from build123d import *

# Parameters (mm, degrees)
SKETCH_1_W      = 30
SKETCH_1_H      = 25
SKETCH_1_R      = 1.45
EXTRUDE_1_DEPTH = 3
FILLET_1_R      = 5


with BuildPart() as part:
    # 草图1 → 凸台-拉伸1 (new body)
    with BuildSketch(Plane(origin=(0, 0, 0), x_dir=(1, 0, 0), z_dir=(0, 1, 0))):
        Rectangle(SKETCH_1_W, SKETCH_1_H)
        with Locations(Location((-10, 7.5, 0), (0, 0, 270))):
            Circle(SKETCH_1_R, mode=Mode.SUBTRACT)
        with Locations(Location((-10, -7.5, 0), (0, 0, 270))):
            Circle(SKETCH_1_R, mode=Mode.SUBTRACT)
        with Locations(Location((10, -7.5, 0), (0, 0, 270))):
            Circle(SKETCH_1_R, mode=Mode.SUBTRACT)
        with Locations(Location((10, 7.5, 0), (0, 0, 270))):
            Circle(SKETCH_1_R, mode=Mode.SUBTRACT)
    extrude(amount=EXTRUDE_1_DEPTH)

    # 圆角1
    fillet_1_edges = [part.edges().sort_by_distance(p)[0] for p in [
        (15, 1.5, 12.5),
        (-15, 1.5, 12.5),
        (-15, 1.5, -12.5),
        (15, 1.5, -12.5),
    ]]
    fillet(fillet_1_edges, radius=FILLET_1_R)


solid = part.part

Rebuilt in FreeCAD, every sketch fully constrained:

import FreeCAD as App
import Part
import Sketcher


def edges_at(feature, points):
    """Names of the edges that pass closest to the given points."""
    edges = feature.Shape.Edges
    near = lambda p: min(range(len(edges)), key=lambda i: edges[i].distToShape(Part.Vertex(*p))[0])
    return sorted({f"Edge{near(p) + 1}" for p in points})

doc = App.newDocument("Part")
body = doc.addObject("PartDesign::Body", "Body")

sketch1 = body.newObject("Sketcher::SketchObject", "Sketch")
sketch1.AttachmentSupport = (doc.getObject("XZ_Plane"), [""])
sketch1.MapMode = "FlatFace"
sketch1.addGeometry([
    Part.LineSegment(App.Vector(-15, -12.5, 0), App.Vector(-15, 12.5, 0)),
    Part.LineSegment(App.Vector(-15, 12.5, 0), App.Vector(15, 12.5, 0)),
    Part.LineSegment(App.Vector(15, 12.5, 0), App.Vector(15, -12.5, 0)),
    Part.LineSegment(App.Vector(15, -12.5, 0), App.Vector(-15, -12.5, 0)),
    Part.Circle(App.Vector(-10, 7.5, 0), App.Vector(0, 0, 1), 1.45),
    Part.Circle(App.Vector(10, 7.5, 0), App.Vector(0, 0, 1), 1.45),
    Part.Circle(App.Vector(-10, -7.5, 0), App.Vector(0, 0, 1), 1.45),
    Part.Circle(App.Vector(10, -7.5, 0), App.Vector(0, 0, 1), 1.45),
], False)
sketch1.addConstraint([
    Sketcher.Constraint("Coincident", 0, 2, 1, 1),
    Sketcher.Constraint("Coincident", 1, 2, 2, 1),
    Sketcher.Constraint("Coincident", 2, 2, 3, 1),
    Sketcher.Constraint("Coincident", 3, 2, 0, 1),
    Sketcher.Constraint("Vertical", 0),
    Sketcher.Constraint("Horizontal", 1),
    Sketcher.Constraint("Vertical", 2),
    Sketcher.Constraint("Horizontal", 3),
    Sketcher.Constraint("Equal", 4, 5),
    Sketcher.Constraint("Equal", 5, 6),
    Sketcher.Constraint("Equal", 6, 7),
    Sketcher.Constraint("Symmetric", 5, 3, 6, 3, -1, 1),
    Sketcher.Constraint("Symmetric", 4, 3, 7, 3, -1, 1),
    Sketcher.Constraint("Symmetric", 0, 2, 2, 2, -1, 1),
    Sketcher.Constraint("Symmetric", 4, 3, 5, 3, -2),
    Sketcher.Constraint("Diameter", 4, 2.9),
    Sketcher.Constraint("DistanceX", 1, 1, 1, 2, 30.0),
    Sketcher.Constraint("DistanceY", 0, 1, 0, 2, 25.0),
    Sketcher.Constraint("DistanceX", 4, 3, -1, 1, 10.0),
    Sketcher.Constraint("DistanceY", 6, 3, 4, 3, 15.0),
])
pad1 = body.newObject("PartDesign::Pad", "Pad")
pad1.Profile = sketch1
pad1.Length = 3
pad1.Reversed = True
doc.recompute()

fillet = body.newObject("PartDesign::Fillet", "Fillet")
fillet.Base = (pad1, edges_at(pad1, [
    (15, 1.5, 12.5),
    (-15, 1.5, 12.5),
    (-15, 1.5, -12.5),
    (15, 1.5, -12.5),
]))
fillet.Radius = 5

doc.recompute()
